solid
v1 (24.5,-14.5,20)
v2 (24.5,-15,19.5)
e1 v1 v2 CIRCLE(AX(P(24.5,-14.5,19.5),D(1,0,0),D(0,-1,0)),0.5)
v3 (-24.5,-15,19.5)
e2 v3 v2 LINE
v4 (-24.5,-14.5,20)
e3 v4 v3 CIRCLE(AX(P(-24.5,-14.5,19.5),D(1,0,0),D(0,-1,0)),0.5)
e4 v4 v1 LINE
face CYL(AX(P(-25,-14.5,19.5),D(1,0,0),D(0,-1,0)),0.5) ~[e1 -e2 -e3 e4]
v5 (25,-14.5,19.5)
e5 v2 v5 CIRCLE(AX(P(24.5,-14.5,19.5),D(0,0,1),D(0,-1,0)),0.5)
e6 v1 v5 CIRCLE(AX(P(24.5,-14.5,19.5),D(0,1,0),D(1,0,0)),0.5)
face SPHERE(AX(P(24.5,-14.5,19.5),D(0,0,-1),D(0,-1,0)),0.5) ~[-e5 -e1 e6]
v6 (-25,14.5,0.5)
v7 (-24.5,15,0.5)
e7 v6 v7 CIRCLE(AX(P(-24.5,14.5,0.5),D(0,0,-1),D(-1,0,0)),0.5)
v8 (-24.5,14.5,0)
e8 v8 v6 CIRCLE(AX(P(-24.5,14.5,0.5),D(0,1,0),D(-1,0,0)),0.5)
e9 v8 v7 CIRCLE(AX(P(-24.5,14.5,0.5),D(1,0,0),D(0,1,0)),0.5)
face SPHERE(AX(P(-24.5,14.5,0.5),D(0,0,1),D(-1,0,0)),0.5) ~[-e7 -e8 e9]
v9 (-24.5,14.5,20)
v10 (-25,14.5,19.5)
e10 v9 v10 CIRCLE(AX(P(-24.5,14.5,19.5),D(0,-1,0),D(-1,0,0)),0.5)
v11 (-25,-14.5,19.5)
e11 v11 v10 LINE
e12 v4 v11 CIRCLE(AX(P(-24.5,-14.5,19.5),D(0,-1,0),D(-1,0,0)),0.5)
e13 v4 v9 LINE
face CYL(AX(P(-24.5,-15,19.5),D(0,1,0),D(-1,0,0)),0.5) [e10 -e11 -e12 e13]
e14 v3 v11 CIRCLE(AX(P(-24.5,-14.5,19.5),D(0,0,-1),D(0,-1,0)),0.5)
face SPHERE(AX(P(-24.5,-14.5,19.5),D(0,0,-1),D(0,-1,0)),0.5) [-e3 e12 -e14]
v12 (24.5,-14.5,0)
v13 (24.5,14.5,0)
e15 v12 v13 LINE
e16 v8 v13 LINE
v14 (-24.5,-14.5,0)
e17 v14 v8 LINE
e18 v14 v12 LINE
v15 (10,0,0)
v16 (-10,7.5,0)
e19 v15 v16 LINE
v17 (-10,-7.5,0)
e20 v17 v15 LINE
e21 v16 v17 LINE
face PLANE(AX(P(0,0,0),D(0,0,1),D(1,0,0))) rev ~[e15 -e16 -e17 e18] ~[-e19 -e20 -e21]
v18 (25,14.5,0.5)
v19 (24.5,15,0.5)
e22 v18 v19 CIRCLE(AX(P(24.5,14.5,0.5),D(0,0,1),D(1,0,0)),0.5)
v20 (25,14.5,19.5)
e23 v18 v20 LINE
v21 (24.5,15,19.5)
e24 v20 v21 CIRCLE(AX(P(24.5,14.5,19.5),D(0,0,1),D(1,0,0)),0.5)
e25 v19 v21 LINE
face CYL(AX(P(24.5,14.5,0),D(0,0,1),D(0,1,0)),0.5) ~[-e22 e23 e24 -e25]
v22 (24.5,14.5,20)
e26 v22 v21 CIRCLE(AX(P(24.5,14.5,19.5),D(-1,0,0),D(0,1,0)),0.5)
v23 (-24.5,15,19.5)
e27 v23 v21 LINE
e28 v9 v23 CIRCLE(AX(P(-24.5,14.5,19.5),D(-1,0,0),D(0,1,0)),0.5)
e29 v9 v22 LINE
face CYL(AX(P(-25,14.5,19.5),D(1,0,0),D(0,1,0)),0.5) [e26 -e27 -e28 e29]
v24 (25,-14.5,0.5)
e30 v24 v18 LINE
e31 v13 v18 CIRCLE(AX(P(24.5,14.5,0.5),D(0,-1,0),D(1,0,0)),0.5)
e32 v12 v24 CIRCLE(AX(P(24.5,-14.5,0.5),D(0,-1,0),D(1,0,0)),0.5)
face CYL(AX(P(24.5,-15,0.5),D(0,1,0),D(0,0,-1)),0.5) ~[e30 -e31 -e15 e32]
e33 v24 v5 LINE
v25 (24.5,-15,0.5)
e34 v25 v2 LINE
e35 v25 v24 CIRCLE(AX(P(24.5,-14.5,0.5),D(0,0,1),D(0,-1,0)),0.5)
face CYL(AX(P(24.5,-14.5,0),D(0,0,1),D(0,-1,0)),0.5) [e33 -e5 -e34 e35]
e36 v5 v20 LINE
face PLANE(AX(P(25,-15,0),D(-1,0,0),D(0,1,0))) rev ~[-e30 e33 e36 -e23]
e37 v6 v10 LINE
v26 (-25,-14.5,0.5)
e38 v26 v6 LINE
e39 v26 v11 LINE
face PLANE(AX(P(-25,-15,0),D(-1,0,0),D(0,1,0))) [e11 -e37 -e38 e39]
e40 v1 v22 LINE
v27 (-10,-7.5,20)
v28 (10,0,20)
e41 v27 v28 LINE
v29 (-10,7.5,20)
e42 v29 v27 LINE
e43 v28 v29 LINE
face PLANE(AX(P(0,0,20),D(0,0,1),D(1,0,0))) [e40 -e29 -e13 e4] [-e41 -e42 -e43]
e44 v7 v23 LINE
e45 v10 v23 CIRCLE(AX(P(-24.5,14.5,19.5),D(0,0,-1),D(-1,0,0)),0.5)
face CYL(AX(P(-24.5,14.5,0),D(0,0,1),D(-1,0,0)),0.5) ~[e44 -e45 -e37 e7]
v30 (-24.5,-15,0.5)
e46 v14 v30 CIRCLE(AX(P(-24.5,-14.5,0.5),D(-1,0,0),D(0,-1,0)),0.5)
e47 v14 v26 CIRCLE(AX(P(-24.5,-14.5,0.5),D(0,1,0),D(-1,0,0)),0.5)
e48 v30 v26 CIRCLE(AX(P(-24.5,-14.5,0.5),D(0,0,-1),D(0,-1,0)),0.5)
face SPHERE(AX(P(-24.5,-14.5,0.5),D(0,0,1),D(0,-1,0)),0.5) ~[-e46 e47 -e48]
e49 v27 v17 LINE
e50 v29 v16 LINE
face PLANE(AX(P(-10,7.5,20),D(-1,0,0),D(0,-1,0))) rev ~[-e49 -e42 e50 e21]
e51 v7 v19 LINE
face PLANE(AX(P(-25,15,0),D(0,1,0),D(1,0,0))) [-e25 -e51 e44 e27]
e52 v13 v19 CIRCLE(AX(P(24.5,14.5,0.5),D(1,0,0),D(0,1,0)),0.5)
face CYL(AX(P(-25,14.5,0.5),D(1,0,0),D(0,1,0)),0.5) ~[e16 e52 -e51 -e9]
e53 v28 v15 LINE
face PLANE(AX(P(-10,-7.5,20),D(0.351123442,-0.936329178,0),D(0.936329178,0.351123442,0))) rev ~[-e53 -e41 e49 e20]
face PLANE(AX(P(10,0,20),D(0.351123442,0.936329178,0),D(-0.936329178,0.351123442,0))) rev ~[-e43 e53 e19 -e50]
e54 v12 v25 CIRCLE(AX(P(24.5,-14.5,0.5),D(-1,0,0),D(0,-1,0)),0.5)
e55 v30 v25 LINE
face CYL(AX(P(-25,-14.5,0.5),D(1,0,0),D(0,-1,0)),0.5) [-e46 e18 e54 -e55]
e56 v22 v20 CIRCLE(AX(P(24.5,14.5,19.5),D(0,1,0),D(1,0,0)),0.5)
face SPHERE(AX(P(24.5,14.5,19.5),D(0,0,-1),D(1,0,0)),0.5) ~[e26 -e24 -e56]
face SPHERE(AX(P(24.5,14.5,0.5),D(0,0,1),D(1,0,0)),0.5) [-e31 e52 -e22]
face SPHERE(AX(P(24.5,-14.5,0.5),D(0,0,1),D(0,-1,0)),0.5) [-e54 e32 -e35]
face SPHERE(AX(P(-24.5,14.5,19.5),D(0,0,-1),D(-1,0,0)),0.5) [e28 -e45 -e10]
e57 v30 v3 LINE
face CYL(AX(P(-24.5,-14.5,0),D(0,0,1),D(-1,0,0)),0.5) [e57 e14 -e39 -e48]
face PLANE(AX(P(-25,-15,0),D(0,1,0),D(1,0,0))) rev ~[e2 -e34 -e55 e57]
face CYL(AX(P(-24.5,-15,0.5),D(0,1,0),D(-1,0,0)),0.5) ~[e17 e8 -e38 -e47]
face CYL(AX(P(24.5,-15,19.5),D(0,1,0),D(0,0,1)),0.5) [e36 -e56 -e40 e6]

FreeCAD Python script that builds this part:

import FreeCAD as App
import Part
import Sketcher
Q = App.Units.Quantity


def edges_at(feature, points):
    """Names of the edges that pass closest to the given points."""
    edges = feature.Shape.Edges
    near = lambda p: min(range(len(edges)), key=lambda i: edges[i].distToShape(Part.Vertex(*p))[0])
    return sorted({f"Edge{near(p) + 1}" for p in points})

doc = App.newDocument("Part")
body = doc.addObject("PartDesign::Body", "Body")

# Sketch on XY plane
sketch1 = body.newObject("Sketcher::SketchObject", "Sketch")
sketch1.AttachmentSupport = (doc.getObject("XY_Plane"), [""])
sketch1.MapMode = "FlatFace"
sketch1.addGeometry(Part.LineSegment(App.Vector(-25, 15, 0), App.Vector(-25, -15, 0)), False)
sketch1.addGeometry(Part.LineSegment(App.Vector(-25, -15, 0), App.Vector(25, -15, 0)), False)
sketch1.addGeometry(Part.LineSegment(App.Vector(25, -15, 0), App.Vector(25, 15, 0)), False)
sketch1.addGeometry(Part.LineSegment(App.Vector(25, 15, 0), App.Vector(-25, 15, 0)), False)
sketch1.addConstraint(Sketcher.Constraint("Coincident", 0, 2, 1, 1))
sketch1.addConstraint(Sketcher.Constraint("Coincident", 1, 2, 2, 1))
sketch1.addConstraint(Sketcher.Constraint("Coincident", 2, 2, 3, 1))
sketch1.addConstraint(Sketcher.Constraint("Coincident", 3, 2, 0, 1))
sketch1.addConstraint(Sketcher.Constraint("Vertical", 0))
sketch1.addConstraint(Sketcher.Constraint("Horizontal", 1))
sketch1.addConstraint(Sketcher.Constraint("Vertical", 2))
sketch1.addConstraint(Sketcher.Constraint("Horizontal", 3))
sketch1.addConstraint(Sketcher.Constraint("Symmetric", 0, 2, 2, 2, -1, 1))
sketch1.addConstraint(Sketcher.Constraint("DistanceX", 1, 1, 1, 2, Q("50 mm")))
sketch1.addConstraint(Sketcher.Constraint("DistanceY", 0, 2, 0, 1, Q("30 mm")))
pad1 = body.newObject("PartDesign::Pad", "Pad")
pad1.Profile = sketch1
pad1.Length = 20

# Sketch on XY plane
sketch2 = body.newObject("Sketcher::SketchObject", "Sketch001")
sketch2.AttachmentSupport = (doc.getObject("XY_Plane"), [""])
sketch2.MapMode = "FlatFace"
sketch2.AttachmentOffset = App.Placement(App.Vector(0, 0, 20), App.Rotation())
sketch2.addGeometry(Part.LineSegment(App.Vector(10, 0, 0), App.Vector(-10, 8, 0)), False)
sketch2.addGeometry(Part.LineSegment(App.Vector(-10, 8, 0), App.Vector(-10, -8, 0)), False)
sketch2.addGeometry(Part.LineSegment(App.Vector(-10, -8, 0), App.Vector(10, 0, 0)), False)
sketch2.addConstraint(Sketcher.Constraint("Coincident", 0, 2, 1, 1))
sketch2.addConstraint(Sketcher.Constraint("Coincident", 1, 2, 2, 1))
sketch2.addConstraint(Sketcher.Constraint("Coincident", 2, 2, 0, 1))
sketch2.addConstraint(Sketcher.Constraint("Vertical", 1))
sketch2.addConstraint(Sketcher.Constraint("PointOnObject", 2, 2, -1))
sketch2.addConstraint(Sketcher.Constraint("Equal", 0, 2))
sketch2.addConstraint(Sketcher.Constraint("DistanceY", 1, 2, 1, 1, Q("15 mm")))
sketch2.addConstraint(Sketcher.Constraint("DistanceX", 0, 2, -1, 1, Q("10 mm")))
sketch2.addConstraint(Sketcher.Constraint("DistanceX", -1, 1, 2, 2, Q("10 mm")))
pocket1 = body.newObject("PartDesign::Pocket", "Pocket")
pocket1.Profile = sketch2
pocket1.Type = "ThroughAll"
doc.recompute()

fillet = body.newObject("PartDesign::Fillet", "Fillet")
fillet.Base = (pocket1, edges_at(pocket1, [
    (-25, -15, 10),
    (25, -15, 10),
    (0, -15, 0),
    (0, -15, 20),
    (-25, 15, 10),
    (-25, 0, 0),
    (-25, 0, 20),
    (25, 15, 10),
    (25, 0, 0),
    (25, 0, 20),
    (0, 15, 0),
    (0, 15, 20),
]))
fillet.Radius = 0.5

doc.recompute()
